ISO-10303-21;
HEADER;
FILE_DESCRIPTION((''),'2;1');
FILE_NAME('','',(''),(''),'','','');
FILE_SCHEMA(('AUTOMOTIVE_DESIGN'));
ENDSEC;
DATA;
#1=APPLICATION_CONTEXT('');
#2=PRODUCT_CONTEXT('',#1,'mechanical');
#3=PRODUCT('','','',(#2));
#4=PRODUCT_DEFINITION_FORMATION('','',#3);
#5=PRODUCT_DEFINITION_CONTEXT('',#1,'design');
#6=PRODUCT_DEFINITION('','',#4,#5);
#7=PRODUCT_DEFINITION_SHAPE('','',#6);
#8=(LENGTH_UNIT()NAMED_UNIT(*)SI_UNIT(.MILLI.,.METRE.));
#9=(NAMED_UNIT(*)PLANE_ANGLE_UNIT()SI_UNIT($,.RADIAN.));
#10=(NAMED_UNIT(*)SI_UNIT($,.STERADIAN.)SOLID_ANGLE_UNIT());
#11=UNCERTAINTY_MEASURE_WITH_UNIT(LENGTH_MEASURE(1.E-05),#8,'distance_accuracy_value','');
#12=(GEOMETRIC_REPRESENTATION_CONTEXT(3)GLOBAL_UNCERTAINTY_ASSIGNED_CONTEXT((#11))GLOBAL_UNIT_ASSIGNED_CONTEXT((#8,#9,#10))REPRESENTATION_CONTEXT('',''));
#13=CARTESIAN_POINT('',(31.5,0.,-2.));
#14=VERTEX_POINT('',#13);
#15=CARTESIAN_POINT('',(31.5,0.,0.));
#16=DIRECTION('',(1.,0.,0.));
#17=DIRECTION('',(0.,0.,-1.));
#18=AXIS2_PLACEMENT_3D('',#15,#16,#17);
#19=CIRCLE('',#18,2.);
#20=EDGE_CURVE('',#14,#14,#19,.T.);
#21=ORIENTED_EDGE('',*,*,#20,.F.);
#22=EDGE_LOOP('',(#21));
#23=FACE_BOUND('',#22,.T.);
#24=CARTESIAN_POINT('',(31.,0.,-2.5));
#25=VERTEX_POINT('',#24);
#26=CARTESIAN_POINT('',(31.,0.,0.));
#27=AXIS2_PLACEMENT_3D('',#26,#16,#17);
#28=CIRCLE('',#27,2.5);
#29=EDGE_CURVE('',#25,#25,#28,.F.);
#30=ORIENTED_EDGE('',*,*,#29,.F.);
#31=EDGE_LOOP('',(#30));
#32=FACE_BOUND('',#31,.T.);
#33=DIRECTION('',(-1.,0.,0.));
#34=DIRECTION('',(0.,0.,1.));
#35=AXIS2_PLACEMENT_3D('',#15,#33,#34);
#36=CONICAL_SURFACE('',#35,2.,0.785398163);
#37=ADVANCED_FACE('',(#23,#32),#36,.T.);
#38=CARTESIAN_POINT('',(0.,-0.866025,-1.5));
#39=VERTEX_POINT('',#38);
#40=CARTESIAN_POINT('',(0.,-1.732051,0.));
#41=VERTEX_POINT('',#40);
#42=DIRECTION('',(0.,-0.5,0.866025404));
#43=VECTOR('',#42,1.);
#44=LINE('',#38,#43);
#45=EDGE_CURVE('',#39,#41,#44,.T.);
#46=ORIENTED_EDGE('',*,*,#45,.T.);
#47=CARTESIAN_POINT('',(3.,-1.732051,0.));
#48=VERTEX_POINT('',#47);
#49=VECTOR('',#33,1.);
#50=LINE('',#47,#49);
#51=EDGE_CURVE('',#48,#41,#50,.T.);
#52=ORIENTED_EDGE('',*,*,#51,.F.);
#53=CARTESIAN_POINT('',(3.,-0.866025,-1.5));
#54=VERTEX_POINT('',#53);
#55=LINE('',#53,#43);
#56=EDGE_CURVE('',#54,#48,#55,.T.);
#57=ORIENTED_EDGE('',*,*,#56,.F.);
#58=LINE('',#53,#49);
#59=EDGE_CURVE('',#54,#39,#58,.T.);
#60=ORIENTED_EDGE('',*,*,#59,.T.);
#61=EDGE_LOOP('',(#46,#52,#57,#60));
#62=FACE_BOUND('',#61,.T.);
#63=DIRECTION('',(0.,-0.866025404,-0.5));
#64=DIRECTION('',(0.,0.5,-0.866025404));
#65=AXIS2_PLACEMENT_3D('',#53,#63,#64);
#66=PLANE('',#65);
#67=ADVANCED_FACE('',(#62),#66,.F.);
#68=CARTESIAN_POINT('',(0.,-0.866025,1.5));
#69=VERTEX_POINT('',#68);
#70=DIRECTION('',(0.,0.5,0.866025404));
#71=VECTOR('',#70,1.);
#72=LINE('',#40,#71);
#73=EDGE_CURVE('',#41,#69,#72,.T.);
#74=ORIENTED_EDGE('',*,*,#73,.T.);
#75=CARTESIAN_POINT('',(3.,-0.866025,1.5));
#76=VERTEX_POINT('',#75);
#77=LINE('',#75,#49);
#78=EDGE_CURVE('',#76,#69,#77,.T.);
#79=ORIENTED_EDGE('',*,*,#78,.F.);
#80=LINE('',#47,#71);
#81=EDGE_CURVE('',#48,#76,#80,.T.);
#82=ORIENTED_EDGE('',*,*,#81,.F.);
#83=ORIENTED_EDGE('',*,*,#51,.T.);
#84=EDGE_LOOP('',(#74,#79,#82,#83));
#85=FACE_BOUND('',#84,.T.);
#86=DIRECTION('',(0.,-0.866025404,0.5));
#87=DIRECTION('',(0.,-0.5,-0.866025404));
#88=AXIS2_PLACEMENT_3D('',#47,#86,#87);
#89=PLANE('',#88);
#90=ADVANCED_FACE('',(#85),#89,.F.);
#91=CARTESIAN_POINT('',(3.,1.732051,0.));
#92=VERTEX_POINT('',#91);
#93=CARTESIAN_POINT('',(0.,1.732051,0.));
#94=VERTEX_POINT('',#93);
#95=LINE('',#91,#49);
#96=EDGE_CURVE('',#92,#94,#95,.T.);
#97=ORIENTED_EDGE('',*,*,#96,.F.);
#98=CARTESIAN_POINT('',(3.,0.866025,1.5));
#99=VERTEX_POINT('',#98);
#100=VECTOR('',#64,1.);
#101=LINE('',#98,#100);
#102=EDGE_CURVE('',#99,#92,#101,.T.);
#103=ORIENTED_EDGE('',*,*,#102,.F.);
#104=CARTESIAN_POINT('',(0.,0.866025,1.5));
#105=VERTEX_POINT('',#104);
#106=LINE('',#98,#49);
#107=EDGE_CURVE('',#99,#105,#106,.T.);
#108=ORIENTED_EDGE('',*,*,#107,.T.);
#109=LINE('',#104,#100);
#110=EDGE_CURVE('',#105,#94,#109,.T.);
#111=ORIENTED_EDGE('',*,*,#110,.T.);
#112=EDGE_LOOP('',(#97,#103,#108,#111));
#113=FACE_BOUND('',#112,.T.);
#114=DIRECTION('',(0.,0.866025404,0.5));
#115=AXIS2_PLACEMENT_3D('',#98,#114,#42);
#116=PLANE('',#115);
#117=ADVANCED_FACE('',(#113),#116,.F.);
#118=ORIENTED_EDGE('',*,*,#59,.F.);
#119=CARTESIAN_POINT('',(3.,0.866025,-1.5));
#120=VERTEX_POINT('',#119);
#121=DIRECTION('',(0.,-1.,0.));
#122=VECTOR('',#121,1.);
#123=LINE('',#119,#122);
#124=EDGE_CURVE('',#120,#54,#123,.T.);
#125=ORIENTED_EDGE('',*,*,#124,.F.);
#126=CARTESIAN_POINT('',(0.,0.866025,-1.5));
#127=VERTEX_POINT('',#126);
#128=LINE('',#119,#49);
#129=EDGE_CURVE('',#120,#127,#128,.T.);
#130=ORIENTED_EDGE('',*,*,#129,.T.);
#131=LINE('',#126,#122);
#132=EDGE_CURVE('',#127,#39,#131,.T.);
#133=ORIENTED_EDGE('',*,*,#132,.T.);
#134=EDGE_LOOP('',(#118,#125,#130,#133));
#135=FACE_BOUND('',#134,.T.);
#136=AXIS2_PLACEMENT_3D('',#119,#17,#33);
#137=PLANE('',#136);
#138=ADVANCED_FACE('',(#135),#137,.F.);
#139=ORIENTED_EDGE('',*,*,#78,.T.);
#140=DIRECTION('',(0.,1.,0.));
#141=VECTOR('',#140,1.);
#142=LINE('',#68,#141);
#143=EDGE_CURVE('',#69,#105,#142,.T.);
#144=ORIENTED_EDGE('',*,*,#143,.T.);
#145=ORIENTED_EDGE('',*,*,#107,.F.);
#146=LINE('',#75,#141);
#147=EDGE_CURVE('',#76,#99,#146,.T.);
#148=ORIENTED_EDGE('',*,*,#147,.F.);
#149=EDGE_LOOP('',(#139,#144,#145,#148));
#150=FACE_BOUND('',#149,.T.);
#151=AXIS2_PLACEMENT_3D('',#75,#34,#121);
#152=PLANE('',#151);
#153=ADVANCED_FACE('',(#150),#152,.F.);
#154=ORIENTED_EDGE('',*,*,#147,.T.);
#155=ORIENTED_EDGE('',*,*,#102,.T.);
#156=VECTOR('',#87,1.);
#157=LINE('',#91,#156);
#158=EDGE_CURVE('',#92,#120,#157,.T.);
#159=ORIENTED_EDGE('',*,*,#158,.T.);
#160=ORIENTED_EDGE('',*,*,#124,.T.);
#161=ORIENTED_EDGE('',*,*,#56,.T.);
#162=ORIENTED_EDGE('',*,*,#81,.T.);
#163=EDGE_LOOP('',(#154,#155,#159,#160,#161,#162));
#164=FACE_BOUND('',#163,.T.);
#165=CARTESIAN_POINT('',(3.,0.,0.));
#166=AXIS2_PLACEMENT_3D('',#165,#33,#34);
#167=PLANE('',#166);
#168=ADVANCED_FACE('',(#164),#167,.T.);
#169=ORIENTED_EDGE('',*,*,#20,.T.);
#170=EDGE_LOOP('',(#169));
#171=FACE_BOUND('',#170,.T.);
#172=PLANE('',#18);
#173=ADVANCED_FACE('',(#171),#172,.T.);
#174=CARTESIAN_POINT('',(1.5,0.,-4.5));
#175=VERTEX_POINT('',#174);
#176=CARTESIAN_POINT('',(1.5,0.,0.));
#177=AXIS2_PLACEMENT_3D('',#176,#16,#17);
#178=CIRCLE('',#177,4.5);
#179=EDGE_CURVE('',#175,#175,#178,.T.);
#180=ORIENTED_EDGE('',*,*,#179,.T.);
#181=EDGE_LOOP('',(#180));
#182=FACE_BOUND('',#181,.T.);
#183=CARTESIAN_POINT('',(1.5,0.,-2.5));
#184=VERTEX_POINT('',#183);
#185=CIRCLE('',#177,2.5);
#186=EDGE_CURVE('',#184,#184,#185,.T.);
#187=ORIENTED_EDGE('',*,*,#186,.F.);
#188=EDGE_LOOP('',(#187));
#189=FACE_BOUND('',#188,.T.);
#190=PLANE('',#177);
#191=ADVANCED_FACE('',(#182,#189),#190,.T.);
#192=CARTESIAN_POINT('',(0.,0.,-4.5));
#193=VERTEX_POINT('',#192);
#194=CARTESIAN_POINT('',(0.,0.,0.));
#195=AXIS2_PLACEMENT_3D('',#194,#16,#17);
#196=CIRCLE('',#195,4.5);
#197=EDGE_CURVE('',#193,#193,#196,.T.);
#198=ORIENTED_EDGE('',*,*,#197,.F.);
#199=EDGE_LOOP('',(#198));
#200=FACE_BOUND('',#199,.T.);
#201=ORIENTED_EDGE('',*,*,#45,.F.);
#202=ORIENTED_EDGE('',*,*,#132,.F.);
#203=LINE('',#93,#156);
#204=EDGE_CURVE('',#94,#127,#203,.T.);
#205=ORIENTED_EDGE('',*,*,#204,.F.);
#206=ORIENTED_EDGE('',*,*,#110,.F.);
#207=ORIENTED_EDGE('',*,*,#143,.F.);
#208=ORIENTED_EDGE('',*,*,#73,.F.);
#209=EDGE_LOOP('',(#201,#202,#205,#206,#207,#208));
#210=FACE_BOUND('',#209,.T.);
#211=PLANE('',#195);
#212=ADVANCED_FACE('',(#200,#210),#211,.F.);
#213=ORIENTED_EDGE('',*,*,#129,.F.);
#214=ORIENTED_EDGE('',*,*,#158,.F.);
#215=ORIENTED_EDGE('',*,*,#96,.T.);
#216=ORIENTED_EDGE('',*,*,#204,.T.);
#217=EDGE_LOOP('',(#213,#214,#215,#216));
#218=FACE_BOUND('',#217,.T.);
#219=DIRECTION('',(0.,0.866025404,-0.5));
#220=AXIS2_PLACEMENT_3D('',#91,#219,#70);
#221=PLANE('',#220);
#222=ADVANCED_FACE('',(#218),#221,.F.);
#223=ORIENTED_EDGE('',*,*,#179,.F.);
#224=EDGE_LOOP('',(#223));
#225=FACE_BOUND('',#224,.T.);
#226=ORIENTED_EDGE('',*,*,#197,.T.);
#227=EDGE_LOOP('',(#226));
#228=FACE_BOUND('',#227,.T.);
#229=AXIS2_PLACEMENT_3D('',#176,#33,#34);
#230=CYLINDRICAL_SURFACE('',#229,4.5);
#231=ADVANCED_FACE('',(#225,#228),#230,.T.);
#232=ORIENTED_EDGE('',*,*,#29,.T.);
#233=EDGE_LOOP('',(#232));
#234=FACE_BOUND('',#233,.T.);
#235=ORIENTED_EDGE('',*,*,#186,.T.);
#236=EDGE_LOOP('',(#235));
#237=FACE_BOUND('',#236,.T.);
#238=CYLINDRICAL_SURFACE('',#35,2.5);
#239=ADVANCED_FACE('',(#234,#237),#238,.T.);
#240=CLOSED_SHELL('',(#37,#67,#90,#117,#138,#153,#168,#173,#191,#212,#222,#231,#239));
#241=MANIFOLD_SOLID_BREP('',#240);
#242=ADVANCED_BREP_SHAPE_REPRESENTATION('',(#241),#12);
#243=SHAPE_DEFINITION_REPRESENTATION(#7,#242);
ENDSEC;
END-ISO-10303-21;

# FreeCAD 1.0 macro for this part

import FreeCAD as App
import Part
import Sketcher

V = App.Vector
Q = App.Units.Quantity


def edges_at(feature, points):
    """Names of the edges that pass closest to the given points."""
    edges = feature.Shape.Edges
    near = lambda p: min(range(len(edges)), key=lambda i: edges[i].distToShape(Part.Vertex(*p))[0])
    return sorted({f"Edge{near(p) + 1}" for p in points})

doc = App.newDocument("Part")
body = doc.addObject("PartDesign::Body", "Body")

sketch1 = doc.addObject("Sketcher::SketchObject", "Sketch")
body.addObject(sketch1)
sketch1.AttachmentSupport = (doc.YZ_Plane, [""])
sketch1.MapMode = "FlatFace"
sketch1.addGeometry(Part.Circle(V(0, 0, 0), V(0, 0, 1), 4.5), False)
sketch1.addConstraint([
    Sketcher.Constraint("Coincident", 0, 3, -1, 1),
    Sketcher.Constraint("Diameter", 0, 9.0),
])
pad1 = doc.addObject("PartDesign::Pad", "Pad")
body.addObject(pad1)
pad1.Profile = sketch1
pad1.Length = 1.5

sketch2 = doc.addObject("Sketcher::SketchObject", "Sketch001")
body.addObject(sketch2)
sketch2.AttachmentSupport = (doc.YZ_Plane, [""])
sketch2.MapMode = "FlatFace"
sketch2.AttachmentOffset = App.Placement(V(0, 0, 1.5), App.Rotation())
sketch2.addGeometry(Part.Circle(V(0, 0, 0), V(0, 0, 1), 2.5), False)
sketch2.addConstraint([
    Sketcher.Constraint("Coincident", 0, 3, -1, 1),
    Sketcher.Constraint("Diameter", 0, 5.0),
])
pad2 = doc.addObject("PartDesign::Pad", "Pad001")
body.addObject(pad2)
pad2.Profile = sketch2
pad2.Length = 30

sketch3 = doc.addObject("Sketcher::SketchObject", "Sketch002")
body.addObject(sketch3)
sketch3.AttachmentSupport = (doc.YZ_Plane, [""])
sketch3.MapMode = "FlatFace"
sketch3.addGeometry([
    Part.LineSegment(V(1.7, 0, 0), V(0.9, -1.5, 0)),
    Part.LineSegment(V(0.9, -1.5, 0), V(-0.9, -1.5, 0)),
    Part.LineSegment(V(-0.9, -1.5, 0), V(-1.7, 0, 0)),
    Part.LineSegment(V(-1.7, 0, 0), V(-0.9, 1.5, 0)),
    Part.LineSegment(V(-0.9, 1.5, 0), V(0.9, 1.5, 0)),
    Part.LineSegment(V(0.9, 1.5, 0), V(1.7, 0, 0)),
], False)
sketch3.addConstraint([
    Sketcher.Constraint("Coincident", 0, 2, 1, 1),
    Sketcher.Constraint("Coincident", 1, 2, 2, 1),
    Sketcher.Constraint("Coincident", 2, 2, 3, 1),
    Sketcher.Constraint("Coincident", 3, 2, 4, 1),
    Sketcher.Constraint("Coincident", 4, 2, 5, 1),
    Sketcher.Constraint("Coincident", 5, 2, 0, 1),
    Sketcher.Constraint("Horizontal", 1),
    Sketcher.Constraint("Horizontal", 4),
    Sketcher.Constraint("Symmetric", 0, 2, 3, 2, -1, 1),
    Sketcher.Constraint("Symmetric", 2, 2, 5, 2, -1, 1),
    Sketcher.Constraint("PointOnObject", 2, 2, -1),
    Sketcher.Constraint("Parallel", 2, 5),
    Sketcher.Constraint("Vertical", 1, 2, 3, 2),
    Sketcher.Constraint("Angle", 0, Q("-120 deg")),
    Sketcher.Constraint("DistanceY", 1, 2, 3, 2, 3.0),
    Sketcher.Constraint("DistanceX", 1, 2, 1, 1, 1.732051),
])
pocket1 = doc.addObject("PartDesign::Pocket", "Pocket")
body.addObject(pocket1)
pocket1.Profile = sketch3
pocket1.Length = 3
pocket1.Reversed = True
doc.recompute()

chamfer = doc.addObject("PartDesign::Chamfer", "Chamfer")
body.addObject(chamfer)
chamfer.Base = (pocket1, edges_at(pocket1, [(31.5, 0, 2.5)]))
chamfer.Size = 0.5

doc.recompute()
